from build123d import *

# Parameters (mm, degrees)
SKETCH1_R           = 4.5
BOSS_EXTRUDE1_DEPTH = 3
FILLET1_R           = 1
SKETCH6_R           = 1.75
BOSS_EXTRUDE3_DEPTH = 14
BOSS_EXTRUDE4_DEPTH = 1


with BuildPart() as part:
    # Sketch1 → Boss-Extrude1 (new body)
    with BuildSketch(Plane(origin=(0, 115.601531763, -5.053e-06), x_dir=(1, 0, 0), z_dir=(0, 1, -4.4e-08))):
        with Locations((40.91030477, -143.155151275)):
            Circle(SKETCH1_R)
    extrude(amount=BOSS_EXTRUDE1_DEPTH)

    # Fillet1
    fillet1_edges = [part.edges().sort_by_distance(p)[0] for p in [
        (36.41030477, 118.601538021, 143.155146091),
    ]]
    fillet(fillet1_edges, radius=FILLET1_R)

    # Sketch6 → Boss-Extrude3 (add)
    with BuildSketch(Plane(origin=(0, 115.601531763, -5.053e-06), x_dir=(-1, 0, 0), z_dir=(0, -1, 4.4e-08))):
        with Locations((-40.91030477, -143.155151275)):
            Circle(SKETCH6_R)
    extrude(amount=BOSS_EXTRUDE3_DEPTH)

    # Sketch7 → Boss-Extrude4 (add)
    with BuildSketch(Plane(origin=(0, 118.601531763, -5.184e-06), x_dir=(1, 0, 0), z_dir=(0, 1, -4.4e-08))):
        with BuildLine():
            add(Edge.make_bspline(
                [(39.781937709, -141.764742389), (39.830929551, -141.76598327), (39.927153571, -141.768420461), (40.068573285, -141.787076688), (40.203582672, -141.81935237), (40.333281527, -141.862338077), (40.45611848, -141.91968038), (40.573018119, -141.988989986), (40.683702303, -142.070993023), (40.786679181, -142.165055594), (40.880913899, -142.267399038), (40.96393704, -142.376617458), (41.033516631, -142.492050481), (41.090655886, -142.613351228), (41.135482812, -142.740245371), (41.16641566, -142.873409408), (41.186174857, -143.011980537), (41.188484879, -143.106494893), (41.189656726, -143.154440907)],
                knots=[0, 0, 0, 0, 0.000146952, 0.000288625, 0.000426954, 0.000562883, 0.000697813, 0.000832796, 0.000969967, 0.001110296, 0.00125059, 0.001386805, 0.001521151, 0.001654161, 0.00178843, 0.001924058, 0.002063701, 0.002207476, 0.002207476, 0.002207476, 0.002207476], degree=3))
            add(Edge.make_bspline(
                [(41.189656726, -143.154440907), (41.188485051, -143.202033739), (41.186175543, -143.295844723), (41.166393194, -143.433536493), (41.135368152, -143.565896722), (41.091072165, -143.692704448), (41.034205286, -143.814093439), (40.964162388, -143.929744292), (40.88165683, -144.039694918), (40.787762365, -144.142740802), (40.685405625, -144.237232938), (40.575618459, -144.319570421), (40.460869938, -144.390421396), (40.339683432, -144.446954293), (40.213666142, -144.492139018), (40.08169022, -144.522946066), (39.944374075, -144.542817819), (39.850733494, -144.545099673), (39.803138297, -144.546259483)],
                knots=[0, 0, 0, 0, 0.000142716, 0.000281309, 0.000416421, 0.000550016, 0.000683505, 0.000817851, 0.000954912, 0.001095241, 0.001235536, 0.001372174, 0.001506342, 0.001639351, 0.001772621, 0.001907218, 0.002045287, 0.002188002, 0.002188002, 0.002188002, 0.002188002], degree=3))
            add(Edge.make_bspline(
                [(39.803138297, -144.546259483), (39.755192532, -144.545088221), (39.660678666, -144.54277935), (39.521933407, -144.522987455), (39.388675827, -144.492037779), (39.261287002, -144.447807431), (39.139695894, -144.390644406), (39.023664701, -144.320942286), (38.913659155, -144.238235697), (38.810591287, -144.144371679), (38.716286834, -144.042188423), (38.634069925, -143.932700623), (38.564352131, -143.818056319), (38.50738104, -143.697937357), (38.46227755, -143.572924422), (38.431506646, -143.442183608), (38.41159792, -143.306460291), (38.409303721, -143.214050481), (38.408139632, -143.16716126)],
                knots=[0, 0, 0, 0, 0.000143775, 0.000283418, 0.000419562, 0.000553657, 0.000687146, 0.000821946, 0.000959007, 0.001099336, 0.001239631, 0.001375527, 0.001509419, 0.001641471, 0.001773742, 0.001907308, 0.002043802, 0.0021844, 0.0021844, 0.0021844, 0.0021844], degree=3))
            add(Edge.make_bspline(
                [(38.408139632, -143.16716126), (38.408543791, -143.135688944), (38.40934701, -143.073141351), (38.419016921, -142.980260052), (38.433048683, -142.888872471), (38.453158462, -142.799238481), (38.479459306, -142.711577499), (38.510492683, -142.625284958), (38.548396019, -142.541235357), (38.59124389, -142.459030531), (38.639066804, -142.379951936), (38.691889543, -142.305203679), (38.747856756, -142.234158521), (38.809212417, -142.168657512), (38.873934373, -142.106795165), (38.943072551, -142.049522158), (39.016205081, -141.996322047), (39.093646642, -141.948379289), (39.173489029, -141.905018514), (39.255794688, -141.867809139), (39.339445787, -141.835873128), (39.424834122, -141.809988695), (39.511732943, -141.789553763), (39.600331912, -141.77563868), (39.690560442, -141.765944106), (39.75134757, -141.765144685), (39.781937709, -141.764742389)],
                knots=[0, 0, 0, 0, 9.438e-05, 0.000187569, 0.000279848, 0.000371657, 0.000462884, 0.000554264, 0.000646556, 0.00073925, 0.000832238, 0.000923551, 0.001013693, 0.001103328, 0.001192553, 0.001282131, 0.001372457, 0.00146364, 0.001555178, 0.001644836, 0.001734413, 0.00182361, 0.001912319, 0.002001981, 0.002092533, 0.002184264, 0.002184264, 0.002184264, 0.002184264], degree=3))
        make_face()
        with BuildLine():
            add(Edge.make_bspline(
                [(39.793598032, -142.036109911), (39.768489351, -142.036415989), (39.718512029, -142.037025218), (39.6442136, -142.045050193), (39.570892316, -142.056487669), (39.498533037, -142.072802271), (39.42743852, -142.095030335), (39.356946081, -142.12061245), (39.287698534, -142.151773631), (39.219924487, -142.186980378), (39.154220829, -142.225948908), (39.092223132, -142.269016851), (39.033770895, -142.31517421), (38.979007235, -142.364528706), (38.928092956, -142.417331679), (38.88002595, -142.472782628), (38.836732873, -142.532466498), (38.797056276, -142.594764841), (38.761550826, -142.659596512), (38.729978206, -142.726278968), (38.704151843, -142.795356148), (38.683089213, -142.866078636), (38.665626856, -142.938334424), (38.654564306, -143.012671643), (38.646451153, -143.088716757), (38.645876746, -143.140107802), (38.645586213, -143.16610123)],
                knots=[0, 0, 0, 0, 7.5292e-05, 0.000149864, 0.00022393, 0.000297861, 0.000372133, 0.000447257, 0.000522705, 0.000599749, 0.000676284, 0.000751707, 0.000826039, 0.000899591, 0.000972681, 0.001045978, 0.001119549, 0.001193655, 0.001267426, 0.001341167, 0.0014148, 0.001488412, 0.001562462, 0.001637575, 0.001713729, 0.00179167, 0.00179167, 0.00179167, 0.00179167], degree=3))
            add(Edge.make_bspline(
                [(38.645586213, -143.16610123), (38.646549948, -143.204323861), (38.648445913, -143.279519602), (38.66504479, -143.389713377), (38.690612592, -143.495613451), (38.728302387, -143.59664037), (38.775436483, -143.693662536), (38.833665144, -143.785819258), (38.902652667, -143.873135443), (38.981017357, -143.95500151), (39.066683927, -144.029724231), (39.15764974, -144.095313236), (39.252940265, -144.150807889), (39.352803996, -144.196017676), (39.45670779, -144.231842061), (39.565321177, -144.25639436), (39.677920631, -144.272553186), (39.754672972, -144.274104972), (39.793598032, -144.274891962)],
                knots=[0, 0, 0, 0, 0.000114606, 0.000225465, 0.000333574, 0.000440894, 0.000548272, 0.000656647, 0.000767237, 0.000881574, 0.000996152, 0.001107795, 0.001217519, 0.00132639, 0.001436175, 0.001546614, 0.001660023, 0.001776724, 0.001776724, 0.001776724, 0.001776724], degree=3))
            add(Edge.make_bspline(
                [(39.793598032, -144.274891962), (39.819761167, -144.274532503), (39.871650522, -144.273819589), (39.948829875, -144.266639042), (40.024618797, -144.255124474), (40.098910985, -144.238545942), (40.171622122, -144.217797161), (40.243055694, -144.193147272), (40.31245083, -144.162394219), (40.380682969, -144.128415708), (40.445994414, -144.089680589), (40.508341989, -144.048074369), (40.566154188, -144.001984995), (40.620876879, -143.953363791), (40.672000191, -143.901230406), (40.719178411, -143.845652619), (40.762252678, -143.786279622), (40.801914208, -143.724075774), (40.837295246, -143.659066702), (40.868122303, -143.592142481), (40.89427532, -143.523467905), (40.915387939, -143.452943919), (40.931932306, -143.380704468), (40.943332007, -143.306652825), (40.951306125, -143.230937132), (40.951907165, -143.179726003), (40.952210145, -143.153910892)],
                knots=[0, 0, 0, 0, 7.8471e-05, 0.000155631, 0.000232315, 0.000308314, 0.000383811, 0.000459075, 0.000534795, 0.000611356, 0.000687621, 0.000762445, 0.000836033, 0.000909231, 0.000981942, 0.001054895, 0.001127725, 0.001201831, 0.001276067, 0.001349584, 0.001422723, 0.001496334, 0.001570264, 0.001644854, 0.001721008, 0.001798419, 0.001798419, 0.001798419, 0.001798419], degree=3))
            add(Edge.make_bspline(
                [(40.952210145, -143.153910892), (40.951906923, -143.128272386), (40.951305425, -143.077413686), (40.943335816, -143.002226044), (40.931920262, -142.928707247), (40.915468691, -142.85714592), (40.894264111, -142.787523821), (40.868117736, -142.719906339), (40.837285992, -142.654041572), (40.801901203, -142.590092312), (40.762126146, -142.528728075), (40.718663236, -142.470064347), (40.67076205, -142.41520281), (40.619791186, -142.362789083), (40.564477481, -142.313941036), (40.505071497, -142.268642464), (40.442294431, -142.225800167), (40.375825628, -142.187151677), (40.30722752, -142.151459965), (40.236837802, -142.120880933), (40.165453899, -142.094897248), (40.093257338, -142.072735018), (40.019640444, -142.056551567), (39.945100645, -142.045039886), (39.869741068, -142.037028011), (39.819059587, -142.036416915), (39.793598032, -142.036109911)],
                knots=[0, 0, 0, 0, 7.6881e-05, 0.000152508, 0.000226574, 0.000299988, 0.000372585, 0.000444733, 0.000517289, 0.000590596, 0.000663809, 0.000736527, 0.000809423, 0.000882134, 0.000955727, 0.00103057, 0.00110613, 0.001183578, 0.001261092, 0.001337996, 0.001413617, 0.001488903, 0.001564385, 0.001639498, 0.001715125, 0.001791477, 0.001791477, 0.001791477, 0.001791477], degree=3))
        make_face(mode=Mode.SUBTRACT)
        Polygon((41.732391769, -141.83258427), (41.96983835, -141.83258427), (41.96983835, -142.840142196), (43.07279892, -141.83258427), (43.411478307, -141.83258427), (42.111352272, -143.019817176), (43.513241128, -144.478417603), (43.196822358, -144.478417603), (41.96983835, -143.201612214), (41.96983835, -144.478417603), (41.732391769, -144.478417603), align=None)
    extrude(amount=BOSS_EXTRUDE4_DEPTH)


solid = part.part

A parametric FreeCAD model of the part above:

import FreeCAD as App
import Part
import Sketcher


def edges_at(feature, points):
    """Names of the edges that pass closest to the given points."""
    edges = feature.Shape.Edges
    near = lambda p: min(range(len(edges)), key=lambda i: edges[i].distToShape(Part.Vertex(*p))[0])
    return sorted({f"Edge{near(p) + 1}" for p in points})


def add_polygon(sketch, points):
    """Adds a closed chain of lines whose ends are joined by coincident constraints."""
    first, n = sketch.GeometryCount, len(points)
    for a, b in zip(points, points[1:] + points[:1]):
        sketch.addGeometry(Part.LineSegment(App.Vector(*a, 0), App.Vector(*b, 0)), False)
    for i in range(n):
        sketch.addConstraint(Sketcher.Constraint("Coincident", first + i, 2, first + (i + 1) % n, 1))

doc = App.newDocument("Part")
body = doc.addObject("PartDesign::Body", "Body")

sketch1 = body.newObject("Sketcher::SketchObject", "Sketch")
sketch1.AttachmentSupport = (doc.getObject("XZ_Plane"), [""])
sketch1.MapMode = "FlatFace"
sketch1.AttachmentOffset = App.Placement(App.Vector(0, 0, -115.601532), App.Rotation())
sketch1.addGeometry(Part.Circle(App.Vector(40.910305, 143.155146, 0), App.Vector(0, 0, 1), 4.5), False)
sketch1.addConstraint(Sketcher.Constraint("Diameter", 0, 9.0))
sketch1.addConstraint(Sketcher.Constraint("DistanceX", -1, 1, 0, 3, 40.910305))
sketch1.addConstraint(Sketcher.Constraint("DistanceY", -1, 1, 0, 3, 143.155146))
pad1 = body.newObject("PartDesign::Pad", "Pad")
pad1.Profile = sketch1
pad1.Length = 3
pad1.Reversed = True
doc.recompute()

fillet = body.newObject("PartDesign::Fillet", "Fillet")
fillet.Base = (pad1, edges_at(pad1, [(36.41, 118.602, 143.155)]))
fillet.Radius = 1

sketch2 = body.newObject("Sketcher::SketchObject", "Sketch001")
sketch2.AttachmentSupport = (doc.getObject("XZ_Plane"), [""])
sketch2.MapMode = "FlatFace"
sketch2.AttachmentOffset = App.Placement(App.Vector(0, 0, -115.601532), App.Rotation())
sketch2.addGeometry(Part.Circle(App.Vector(40.910305, 143.155146, 0), App.Vector(0, 0, 1), 1.75), False)
sketch2.addConstraint(Sketcher.Constraint("Diameter", 0, 3.5))
sketch2.addConstraint(Sketcher.Constraint("DistanceX", -1, 1, 0, 3, 40.910305))
sketch2.addConstraint(Sketcher.Constraint("DistanceY", -1, 1, 0, 3, 143.155146))
pad2 = body.newObject("PartDesign::Pad", "Pad001")
pad2.Profile = sketch2
pad2.Length = 14

sketch3 = body.newObject("Sketcher::SketchObject", "Sketch002")
sketch3.AttachmentSupport = (doc.getObject("XZ_Plane"), [""])
sketch3.MapMode = "FlatFace"
sketch3.AttachmentOffset = App.Placement(App.Vector(0, 0, -118.601532), App.Rotation())
sketch3.addGeometry(Part.BSplineCurve([App.Vector(39.781938, 141.764737, 0), App.Vector(39.83093, 141.765978, 0), App.Vector(39.927154, 141.768415, 0), App.Vector(40.068573, 141.787072, 0), App.Vector(40.203583, 141.819347, 0), App.Vector(40.333282, 141.862333, 0), App.Vector(40.456118, 141.919675, 0), App.Vector(40.573018, 141.988985, 0), App.Vector(40.683702, 142.070988, 0), App.Vector(40.786679, 142.16505, 0), App.Vector(40.880914, 142.267394, 0), App.Vector(40.963937, 142.376612, 0), App.Vector(41.033517, 142.492045, 0), App.Vector(41.090656, 142.613346, 0), App.Vector(41.135483, 142.74024, 0), App.Vector(41.166416, 142.873404, 0), App.Vector(41.186175, 143.011975, 0), App.Vector(41.188485, 143.10649, 0), App.Vector(41.189657, 143.154436, 0)], [4, 1, 1, 1, 1, 1, 1, 1, 1, 1, 1, 1, 1, 1, 1, 1, 4], [0, 0.000146952, 0.000288625, 0.000426954, 0.000562883, 0.000697813, 0.000832796, 0.000969967, 0.001110296, 0.00125059, 0.001386805, 0.001521151, 0.001654161, 0.00178843, 0.001924058, 0.002063701, 0.002207476], False, 3, [1, 1, 1, 1, 1, 1, 1, 1, 1, 1, 1, 1, 1, 1, 1, 1, 1, 1, 1], False), False)
sketch3.addGeometry(Part.BSplineCurve([App.Vector(38.40814, 143.167156, 0), App.Vector(38.408544, 143.135684, 0), App.Vector(38.409347, 143.073136, 0), App.Vector(38.419017, 142.980255, 0), App.Vector(38.433049, 142.888867, 0), App.Vector(38.453158, 142.799233, 0), App.Vector(38.479459, 142.711572, 0), App.Vector(38.510493, 142.62528, 0), App.Vector(38.548396, 142.54123, 0), App.Vector(38.591244, 142.459025, 0), App.Vector(38.639067, 142.379947, 0), App.Vector(38.69189, 142.305198, 0), App.Vector(38.747857, 142.234153, 0), App.Vector(38.809212, 142.168652, 0), App.Vector(38.873934, 142.10679, 0), App.Vector(38.943073, 142.049517, 0), App.Vector(39.016205, 141.996317, 0), App.Vector(39.093647, 141.948374, 0), App.Vector(39.173489, 141.905013, 0), App.Vector(39.255795, 141.867804, 0), App.Vector(39.339446, 141.835868, 0), App.Vector(39.424834, 141.809984, 0), App.Vector(39.511733, 141.789549, 0), App.Vector(39.600332, 141.775633, 0), App.Vector(39.69056, 141.765939, 0), App.Vector(39.751348, 141.76514, 0), App.Vector(39.781938, 141.764737, 0)], [4, 1, 1, 1, 1, 1, 1, 1, 1, 1, 1, 1, 1, 1, 1, 1, 1, 1, 1, 1, 1, 1, 1, 1, 4], [0, 0.00009438, 0.000187569, 0.000279848, 0.000371657, 0.000462884, 0.000554264, 0.000646556, 0.00073925, 0.000832238, 0.000923551, 0.001013693, 0.001103328, 0.001192553, 0.001282131, 0.001372457, 0.00146364, 0.001555178, 0.001644836, 0.001734413, 0.00182361, 0.001912319, 0.002001981, 0.002092533, 0.002184264], False, 3, [1, 1, 1, 1, 1, 1, 1, 1, 1, 1, 1, 1, 1, 1, 1, 1, 1, 1, 1, 1, 1, 1, 1, 1, 1, 1, 1], False), False)
sketch3.addGeometry(Part.BSplineCurve([App.Vector(39.803138, 144.546254, 0), App.Vector(39.755193, 144.545083, 0), App.Vector(39.660679, 144.542774, 0), App.Vector(39.521933, 144.522982, 0), App.Vector(39.388676, 144.492033, 0), App.Vector(39.261287, 144.447802, 0), App.Vector(39.139696, 144.390639, 0), App.Vector(39.023665, 144.320937, 0), App.Vector(38.913659, 144.238231, 0), App.Vector(38.810591, 144.144366, 0), App.Vector(38.716287, 144.042183, 0), App.Vector(38.63407, 143.932695, 0), App.Vector(38.564352, 143.818051, 0), App.Vector(38.507381, 143.697932, 0), App.Vector(38.462278, 143.572919, 0), App.Vector(38.431507, 143.442178, 0), App.Vector(38.411598, 143.306455, 0), App.Vector(38.409304, 143.214045, 0), App.Vector(38.40814, 143.167156, 0)], [4, 1, 1, 1, 1, 1, 1, 1, 1, 1, 1, 1, 1, 1, 1, 1, 4], [0, 0.000143775, 0.000283418, 0.000419562, 0.000553657, 0.000687146, 0.000821946, 0.000959007, 0.001099336, 0.001239631, 0.001375527, 0.001509419, 0.001641471, 0.001773742, 0.001907308, 0.002043802, 0.0021844], False, 3, [1, 1, 1, 1, 1, 1, 1, 1, 1, 1, 1, 1, 1, 1, 1, 1, 1, 1, 1], False), False)
sketch3.addGeometry(Part.BSplineCurve([App.Vector(41.189657, 143.154436, 0), App.Vector(41.188485, 143.202029, 0), App.Vector(41.186176, 143.29584, 0), App.Vector(41.166393, 143.433531, 0), App.Vector(41.135368, 143.565892, 0), App.Vector(41.091072, 143.692699, 0), App.Vector(41.034205, 143.814088, 0), App.Vector(40.964162, 143.929739, 0), App.Vector(40.881657, 144.03969, 0), App.Vector(40.787762, 144.142736, 0), App.Vector(40.685406, 144.237228, 0), App.Vector(40.575618, 144.319565, 0), App.Vector(40.46087, 144.390416, 0), App.Vector(40.339683, 144.446949, 0), App.Vector(40.213666, 144.492134, 0), App.Vector(40.08169, 144.522941, 0), App.Vector(39.944374, 144.542813, 0), App.Vector(39.850733, 144.545094, 0), App.Vector(39.803138, 144.546254, 0)], [4, 1, 1, 1, 1, 1, 1, 1, 1, 1, 1, 1, 1, 1, 1, 1, 4], [0, 0.000142716, 0.000281309, 0.000416421, 0.000550016, 0.000683505, 0.000817851, 0.000954912, 0.001095241, 0.001235536, 0.001372174, 0.001506342, 0.001639351, 0.001772621, 0.001907218, 0.002045287, 0.002188002], False, 3, [1, 1, 1, 1, 1, 1, 1, 1, 1, 1, 1, 1, 1, 1, 1, 1, 1, 1, 1], False), False)
sketch3.addGeometry(Part.BSplineCurve([App.Vector(40.95221, 143.153906, 0), App.Vector(40.951907, 143.128267, 0), App.Vector(40.951305, 143.077409, 0), App.Vector(40.943336, 143.002221, 0), App.Vector(40.93192, 142.928702, 0), App.Vector(40.915469, 142.857141, 0), App.Vector(40.894264, 142.787519, 0), App.Vector(40.868118, 142.719901, 0), App.Vector(40.837286, 142.654036, 0), App.Vector(40.801901, 142.590087, 0), App.Vector(40.762126, 142.528723, 0), App.Vector(40.718663, 142.470059, 0), App.Vector(40.670762, 142.415198, 0), App.Vector(40.619791, 142.362784, 0), App.Vector(40.564477, 142.313936, 0), App.Vector(40.505071, 142.268637, 0), App.Vector(40.442294, 142.225795, 0), App.Vector(40.375826, 142.187146, 0), App.Vector(40.307228, 142.151455, 0), App.Vector(40.236838, 142.120876, 0), App.Vector(40.165454, 142.094892, 0), App.Vector(40.093257, 142.07273, 0), App.Vector(40.01964, 142.056546, 0), App.Vector(39.945101, 142.045035, 0), App.Vector(39.869741, 142.037023, 0), App.Vector(39.81906, 142.036412, 0), App.Vector(39.793598, 142.036105, 0)], [4, 1, 1, 1, 1, 1, 1, 1, 1, 1, 1, 1, 1, 1, 1, 1, 1, 1, 1, 1, 1, 1, 1, 1, 4], [0, 0.000076881, 0.000152508, 0.000226574, 0.000299988, 0.000372585, 0.000444733, 0.000517289, 0.000590596, 0.000663809, 0.000736527, 0.000809423, 0.000882134, 0.000955727, 0.00103057, 0.00110613, 0.001183578, 0.001261092, 0.001337996, 0.001413617, 0.001488903, 0.001564385, 0.001639498, 0.001715125, 0.001791477], False, 3, [1, 1, 1, 1, 1, 1, 1, 1, 1, 1, 1, 1, 1, 1, 1, 1, 1, 1, 1, 1, 1, 1, 1, 1, 1, 1, 1], False), False)
sketch3.addGeometry(Part.BSplineCurve([App.Vector(39.793598, 144.274887, 0), App.Vector(39.819761, 144.274527, 0), App.Vector(39.871651, 144.273814, 0), App.Vector(39.94883, 144.266634, 0), App.Vector(40.024619, 144.255119, 0), App.Vector(40.098911, 144.238541, 0), App.Vector(40.171622, 144.217792, 0), App.Vector(40.243056, 144.193142, 0), App.Vector(40.312451, 144.162389, 0), App.Vector(40.380683, 144.128411, 0), App.Vector(40.445994, 144.089675, 0), App.Vector(40.508342, 144.048069, 0), App.Vector(40.566154, 144.00198, 0), App.Vector(40.620877, 143.953359, 0), App.Vector(40.672, 143.901225, 0), App.Vector(40.719178, 143.845647, 0), App.Vector(40.762253, 143.786274, 0), App.Vector(40.801914, 143.724071, 0), App.Vector(40.837295, 143.659062, 0), App.Vector(40.868122, 143.592137, 0), App.Vector(40.894275, 143.523463, 0), App.Vector(40.915388, 143.452939, 0), App.Vector(40.931932, 143.380699, 0), App.Vector(40.943332, 143.306648, 0), App.Vector(40.951306, 143.230932, 0), App.Vector(40.951907, 143.179721, 0), App.Vector(40.95221, 143.153906, 0)], [4, 1, 1, 1, 1, 1, 1, 1, 1, 1, 1, 1, 1, 1, 1, 1, 1, 1, 1, 1, 1, 1, 1, 1, 4], [0, 0.000078471, 0.000155631, 0.000232315, 0.000308314, 0.000383811, 0.000459075, 0.000534795, 0.000611356, 0.000687621, 0.000762445, 0.000836033, 0.000909231, 0.000981942, 0.001054895, 0.001127725, 0.001201831, 0.001276067, 0.001349584, 0.001422723, 0.001496334, 0.001570264, 0.001644854, 0.001721008, 0.001798419], False, 3, [1, 1, 1, 1, 1, 1, 1, 1, 1, 1, 1, 1, 1, 1, 1, 1, 1, 1, 1, 1, 1, 1, 1, 1, 1, 1, 1], False), False)
sketch3.addGeometry(Part.BSplineCurve([App.Vector(38.645586, 143.166096, 0), App.Vector(38.64655, 143.204319, 0), App.Vector(38.648446, 143.279514, 0), App.Vector(38.665045, 143.389708, 0), App.Vector(38.690613, 143.495608, 0), App.Vector(38.728302, 143.596635, 0), App.Vector(38.775436, 143.693657, 0), App.Vector(38.833665, 143.785814, 0), App.Vector(38.902653, 143.87313, 0), App.Vector(38.981017, 143.954996, 0), App.Vector(39.066684, 144.029719, 0), App.Vector(39.15765, 144.095308, 0), App.Vector(39.25294, 144.150803, 0), App.Vector(39.352804, 144.196012, 0), App.Vector(39.456708, 144.231837, 0), App.Vector(39.565321, 144.256389, 0), App.Vector(39.677921, 144.272548, 0), App.Vector(39.754673, 144.2741, 0), App.Vector(39.793598, 144.274887, 0)], [4, 1, 1, 1, 1, 1, 1, 1, 1, 1, 1, 1, 1, 1, 1, 1, 4], [0, 0.000114606, 0.000225465, 0.000333574, 0.000440894, 0.000548272, 0.000656647, 0.000767237, 0.000881574, 0.000996152, 0.001107795, 0.001217519, 0.00132639, 0.001436175, 0.001546614, 0.001660023, 0.001776724], False, 3, [1, 1, 1, 1, 1, 1, 1, 1, 1, 1, 1, 1, 1, 1, 1, 1, 1, 1, 1], False), False)
sketch3.addGeometry(Part.BSplineCurve([App.Vector(39.793598, 142.036105, 0), App.Vector(39.768489, 142.036411, 0), App.Vector(39.718512, 142.03702, 0), App.Vector(39.644214, 142.045045, 0), App.Vector(39.570892, 142.056482, 0), App.Vector(39.498533, 142.072797, 0), App.Vector(39.427439, 142.095025, 0), App.Vector(39.356946, 142.120607, 0), App.Vector(39.287699, 142.151768, 0), App.Vector(39.219924, 142.186975, 0), App.Vector(39.154221, 142.225944, 0), App.Vector(39.092223, 142.269012, 0), App.Vector(39.033771, 142.315169, 0), App.Vector(38.979007, 142.364524, 0), App.Vector(38.928093, 142.417326, 0), App.Vector(38.880026, 142.472777, 0), App.Vector(38.836733, 142.532461, 0), App.Vector(38.797056, 142.59476, 0), App.Vector(38.761551, 142.659591, 0), App.Vector(38.729978, 142.726274, 0), App.Vector(38.704152, 142.795351, 0), App.Vector(38.683089, 142.866073, 0), App.Vector(38.665627, 142.938329, 0), App.Vector(38.654564, 143.012666, 0), App.Vector(38.646451, 143.088712, 0), App.Vector(38.645877, 143.140103, 0), App.Vector(38.645586, 143.166096, 0)], [4, 1, 1, 1, 1, 1, 1, 1, 1, 1, 1, 1, 1, 1, 1, 1, 1, 1, 1, 1, 1, 1, 1, 1, 4], [0, 0.000075292, 0.000149864, 0.00022393, 0.000297861, 0.000372133, 0.000447257, 0.000522705, 0.000599749, 0.000676284, 0.000751707, 0.000826039, 0.000899591, 0.000972681, 0.001045978, 0.001119549, 0.001193655, 0.001267426, 0.001341167, 0.0014148, 0.001488412, 0.001562462, 0.001637575, 0.001713729, 0.00179167], False, 3, [1, 1, 1, 1, 1, 1, 1, 1, 1, 1, 1, 1, 1, 1, 1, 1, 1, 1, 1, 1, 1, 1, 1, 1, 1, 1, 1], False), False)
add_polygon(sketch3, [(41.969838, 141.832579), (41.732392, 141.832579), (41.732392, 144.478412), (41.969838, 144.478412), (41.969838, 143.201607), (43.196822, 144.478412), (43.513241, 144.478412), (42.111352, 143.019812), (43.411478, 141.832579), (43.072799, 141.832579), (41.969838, 142.840137)])
sketch3.addConstraint(Sketcher.Constraint("Block", 0))
sketch3.addConstraint(Sketcher.Constraint("Block", 1))
sketch3.addConstraint(Sketcher.Constraint("Block", 2))
sketch3.addConstraint(Sketcher.Constraint("Block", 3))
sketch3.addConstraint(Sketcher.Constraint("Block", 4))
sketch3.addConstraint(Sketcher.Constraint("Block", 5))
sketch3.addConstraint(Sketcher.Constraint("Block", 6))
sketch3.addConstraint(Sketcher.Constraint("Block", 7))
sketch3.addConstraint(Sketcher.Constraint("Horizontal", 8))
sketch3.addConstraint(Sketcher.Constraint("Vertical", 9))
sketch3.addConstraint(Sketcher.Constraint("Horizontal", 10))
sketch3.addConstraint(Sketcher.Constraint("Vertical", 11))
sketch3.addConstraint(Sketcher.Constraint("Horizontal", 13))
sketch3.addConstraint(Sketcher.Constraint("Horizontal", 16))
sketch3.addConstraint(Sketcher.Constraint("Vertical", 18))
sketch3.addConstraint(Sketcher.Constraint("Horizontal", 10, 2, 12, 2))
sketch3.addConstraint(Sketcher.Constraint("Horizontal", 8, 2, 15, 2))
sketch3.addConstraint(Sketcher.Constraint("Vertical", 11, 2, 17, 2))
sketch3.addConstraint(Sketcher.Constraint("DistanceX", 13, 1, 13, 2, 0.316419))
sketch3.addConstraint(Sketcher.Constraint("DistanceX", 16, 2, 16, 1, 0.338679))
sketch3.addConstraint(Sketcher.Constraint("DistanceX", -1, 1, 16, 2, 43.072799))
sketch3.addConstraint(Sketcher.Constraint("DistanceY", 14, 2, 10, 2, 1.4586))
sketch3.addConstraint(Sketcher.Constraint("Distance", 14, 2.023069))
sketch3.addConstraint(Sketcher.Constraint("Distance", 15, 1.760639))
sketch3.addConstraint(Sketcher.Constraint("DistanceX", 8, 2, 8, 1, 0.237447))
sketch3.addConstraint(Sketcher.Constraint("DistanceY", 9, 1, 9, 2, 2.645833))
sketch3.addConstraint(Sketcher.Constraint("DistanceY", 11, 2, 11, 1, 1.276805))
sketch3.addConstraint(Sketcher.Constraint("DistanceY", 18, 2, 18, 1, 1.007558))
sketch3.addConstraint(Sketcher.Constraint("DistanceX", -1, 1, 8, 2, 41.732392))
sketch3.addConstraint(Sketcher.Constraint("DistanceY", -1, 1, 8, 2, 141.832579))
pad3 = body.newObject("PartDesign::Pad", "Pad002")
pad3.Profile = sketch3
pad3.Length = 1
pad3.Reversed = True

doc.recompute()
